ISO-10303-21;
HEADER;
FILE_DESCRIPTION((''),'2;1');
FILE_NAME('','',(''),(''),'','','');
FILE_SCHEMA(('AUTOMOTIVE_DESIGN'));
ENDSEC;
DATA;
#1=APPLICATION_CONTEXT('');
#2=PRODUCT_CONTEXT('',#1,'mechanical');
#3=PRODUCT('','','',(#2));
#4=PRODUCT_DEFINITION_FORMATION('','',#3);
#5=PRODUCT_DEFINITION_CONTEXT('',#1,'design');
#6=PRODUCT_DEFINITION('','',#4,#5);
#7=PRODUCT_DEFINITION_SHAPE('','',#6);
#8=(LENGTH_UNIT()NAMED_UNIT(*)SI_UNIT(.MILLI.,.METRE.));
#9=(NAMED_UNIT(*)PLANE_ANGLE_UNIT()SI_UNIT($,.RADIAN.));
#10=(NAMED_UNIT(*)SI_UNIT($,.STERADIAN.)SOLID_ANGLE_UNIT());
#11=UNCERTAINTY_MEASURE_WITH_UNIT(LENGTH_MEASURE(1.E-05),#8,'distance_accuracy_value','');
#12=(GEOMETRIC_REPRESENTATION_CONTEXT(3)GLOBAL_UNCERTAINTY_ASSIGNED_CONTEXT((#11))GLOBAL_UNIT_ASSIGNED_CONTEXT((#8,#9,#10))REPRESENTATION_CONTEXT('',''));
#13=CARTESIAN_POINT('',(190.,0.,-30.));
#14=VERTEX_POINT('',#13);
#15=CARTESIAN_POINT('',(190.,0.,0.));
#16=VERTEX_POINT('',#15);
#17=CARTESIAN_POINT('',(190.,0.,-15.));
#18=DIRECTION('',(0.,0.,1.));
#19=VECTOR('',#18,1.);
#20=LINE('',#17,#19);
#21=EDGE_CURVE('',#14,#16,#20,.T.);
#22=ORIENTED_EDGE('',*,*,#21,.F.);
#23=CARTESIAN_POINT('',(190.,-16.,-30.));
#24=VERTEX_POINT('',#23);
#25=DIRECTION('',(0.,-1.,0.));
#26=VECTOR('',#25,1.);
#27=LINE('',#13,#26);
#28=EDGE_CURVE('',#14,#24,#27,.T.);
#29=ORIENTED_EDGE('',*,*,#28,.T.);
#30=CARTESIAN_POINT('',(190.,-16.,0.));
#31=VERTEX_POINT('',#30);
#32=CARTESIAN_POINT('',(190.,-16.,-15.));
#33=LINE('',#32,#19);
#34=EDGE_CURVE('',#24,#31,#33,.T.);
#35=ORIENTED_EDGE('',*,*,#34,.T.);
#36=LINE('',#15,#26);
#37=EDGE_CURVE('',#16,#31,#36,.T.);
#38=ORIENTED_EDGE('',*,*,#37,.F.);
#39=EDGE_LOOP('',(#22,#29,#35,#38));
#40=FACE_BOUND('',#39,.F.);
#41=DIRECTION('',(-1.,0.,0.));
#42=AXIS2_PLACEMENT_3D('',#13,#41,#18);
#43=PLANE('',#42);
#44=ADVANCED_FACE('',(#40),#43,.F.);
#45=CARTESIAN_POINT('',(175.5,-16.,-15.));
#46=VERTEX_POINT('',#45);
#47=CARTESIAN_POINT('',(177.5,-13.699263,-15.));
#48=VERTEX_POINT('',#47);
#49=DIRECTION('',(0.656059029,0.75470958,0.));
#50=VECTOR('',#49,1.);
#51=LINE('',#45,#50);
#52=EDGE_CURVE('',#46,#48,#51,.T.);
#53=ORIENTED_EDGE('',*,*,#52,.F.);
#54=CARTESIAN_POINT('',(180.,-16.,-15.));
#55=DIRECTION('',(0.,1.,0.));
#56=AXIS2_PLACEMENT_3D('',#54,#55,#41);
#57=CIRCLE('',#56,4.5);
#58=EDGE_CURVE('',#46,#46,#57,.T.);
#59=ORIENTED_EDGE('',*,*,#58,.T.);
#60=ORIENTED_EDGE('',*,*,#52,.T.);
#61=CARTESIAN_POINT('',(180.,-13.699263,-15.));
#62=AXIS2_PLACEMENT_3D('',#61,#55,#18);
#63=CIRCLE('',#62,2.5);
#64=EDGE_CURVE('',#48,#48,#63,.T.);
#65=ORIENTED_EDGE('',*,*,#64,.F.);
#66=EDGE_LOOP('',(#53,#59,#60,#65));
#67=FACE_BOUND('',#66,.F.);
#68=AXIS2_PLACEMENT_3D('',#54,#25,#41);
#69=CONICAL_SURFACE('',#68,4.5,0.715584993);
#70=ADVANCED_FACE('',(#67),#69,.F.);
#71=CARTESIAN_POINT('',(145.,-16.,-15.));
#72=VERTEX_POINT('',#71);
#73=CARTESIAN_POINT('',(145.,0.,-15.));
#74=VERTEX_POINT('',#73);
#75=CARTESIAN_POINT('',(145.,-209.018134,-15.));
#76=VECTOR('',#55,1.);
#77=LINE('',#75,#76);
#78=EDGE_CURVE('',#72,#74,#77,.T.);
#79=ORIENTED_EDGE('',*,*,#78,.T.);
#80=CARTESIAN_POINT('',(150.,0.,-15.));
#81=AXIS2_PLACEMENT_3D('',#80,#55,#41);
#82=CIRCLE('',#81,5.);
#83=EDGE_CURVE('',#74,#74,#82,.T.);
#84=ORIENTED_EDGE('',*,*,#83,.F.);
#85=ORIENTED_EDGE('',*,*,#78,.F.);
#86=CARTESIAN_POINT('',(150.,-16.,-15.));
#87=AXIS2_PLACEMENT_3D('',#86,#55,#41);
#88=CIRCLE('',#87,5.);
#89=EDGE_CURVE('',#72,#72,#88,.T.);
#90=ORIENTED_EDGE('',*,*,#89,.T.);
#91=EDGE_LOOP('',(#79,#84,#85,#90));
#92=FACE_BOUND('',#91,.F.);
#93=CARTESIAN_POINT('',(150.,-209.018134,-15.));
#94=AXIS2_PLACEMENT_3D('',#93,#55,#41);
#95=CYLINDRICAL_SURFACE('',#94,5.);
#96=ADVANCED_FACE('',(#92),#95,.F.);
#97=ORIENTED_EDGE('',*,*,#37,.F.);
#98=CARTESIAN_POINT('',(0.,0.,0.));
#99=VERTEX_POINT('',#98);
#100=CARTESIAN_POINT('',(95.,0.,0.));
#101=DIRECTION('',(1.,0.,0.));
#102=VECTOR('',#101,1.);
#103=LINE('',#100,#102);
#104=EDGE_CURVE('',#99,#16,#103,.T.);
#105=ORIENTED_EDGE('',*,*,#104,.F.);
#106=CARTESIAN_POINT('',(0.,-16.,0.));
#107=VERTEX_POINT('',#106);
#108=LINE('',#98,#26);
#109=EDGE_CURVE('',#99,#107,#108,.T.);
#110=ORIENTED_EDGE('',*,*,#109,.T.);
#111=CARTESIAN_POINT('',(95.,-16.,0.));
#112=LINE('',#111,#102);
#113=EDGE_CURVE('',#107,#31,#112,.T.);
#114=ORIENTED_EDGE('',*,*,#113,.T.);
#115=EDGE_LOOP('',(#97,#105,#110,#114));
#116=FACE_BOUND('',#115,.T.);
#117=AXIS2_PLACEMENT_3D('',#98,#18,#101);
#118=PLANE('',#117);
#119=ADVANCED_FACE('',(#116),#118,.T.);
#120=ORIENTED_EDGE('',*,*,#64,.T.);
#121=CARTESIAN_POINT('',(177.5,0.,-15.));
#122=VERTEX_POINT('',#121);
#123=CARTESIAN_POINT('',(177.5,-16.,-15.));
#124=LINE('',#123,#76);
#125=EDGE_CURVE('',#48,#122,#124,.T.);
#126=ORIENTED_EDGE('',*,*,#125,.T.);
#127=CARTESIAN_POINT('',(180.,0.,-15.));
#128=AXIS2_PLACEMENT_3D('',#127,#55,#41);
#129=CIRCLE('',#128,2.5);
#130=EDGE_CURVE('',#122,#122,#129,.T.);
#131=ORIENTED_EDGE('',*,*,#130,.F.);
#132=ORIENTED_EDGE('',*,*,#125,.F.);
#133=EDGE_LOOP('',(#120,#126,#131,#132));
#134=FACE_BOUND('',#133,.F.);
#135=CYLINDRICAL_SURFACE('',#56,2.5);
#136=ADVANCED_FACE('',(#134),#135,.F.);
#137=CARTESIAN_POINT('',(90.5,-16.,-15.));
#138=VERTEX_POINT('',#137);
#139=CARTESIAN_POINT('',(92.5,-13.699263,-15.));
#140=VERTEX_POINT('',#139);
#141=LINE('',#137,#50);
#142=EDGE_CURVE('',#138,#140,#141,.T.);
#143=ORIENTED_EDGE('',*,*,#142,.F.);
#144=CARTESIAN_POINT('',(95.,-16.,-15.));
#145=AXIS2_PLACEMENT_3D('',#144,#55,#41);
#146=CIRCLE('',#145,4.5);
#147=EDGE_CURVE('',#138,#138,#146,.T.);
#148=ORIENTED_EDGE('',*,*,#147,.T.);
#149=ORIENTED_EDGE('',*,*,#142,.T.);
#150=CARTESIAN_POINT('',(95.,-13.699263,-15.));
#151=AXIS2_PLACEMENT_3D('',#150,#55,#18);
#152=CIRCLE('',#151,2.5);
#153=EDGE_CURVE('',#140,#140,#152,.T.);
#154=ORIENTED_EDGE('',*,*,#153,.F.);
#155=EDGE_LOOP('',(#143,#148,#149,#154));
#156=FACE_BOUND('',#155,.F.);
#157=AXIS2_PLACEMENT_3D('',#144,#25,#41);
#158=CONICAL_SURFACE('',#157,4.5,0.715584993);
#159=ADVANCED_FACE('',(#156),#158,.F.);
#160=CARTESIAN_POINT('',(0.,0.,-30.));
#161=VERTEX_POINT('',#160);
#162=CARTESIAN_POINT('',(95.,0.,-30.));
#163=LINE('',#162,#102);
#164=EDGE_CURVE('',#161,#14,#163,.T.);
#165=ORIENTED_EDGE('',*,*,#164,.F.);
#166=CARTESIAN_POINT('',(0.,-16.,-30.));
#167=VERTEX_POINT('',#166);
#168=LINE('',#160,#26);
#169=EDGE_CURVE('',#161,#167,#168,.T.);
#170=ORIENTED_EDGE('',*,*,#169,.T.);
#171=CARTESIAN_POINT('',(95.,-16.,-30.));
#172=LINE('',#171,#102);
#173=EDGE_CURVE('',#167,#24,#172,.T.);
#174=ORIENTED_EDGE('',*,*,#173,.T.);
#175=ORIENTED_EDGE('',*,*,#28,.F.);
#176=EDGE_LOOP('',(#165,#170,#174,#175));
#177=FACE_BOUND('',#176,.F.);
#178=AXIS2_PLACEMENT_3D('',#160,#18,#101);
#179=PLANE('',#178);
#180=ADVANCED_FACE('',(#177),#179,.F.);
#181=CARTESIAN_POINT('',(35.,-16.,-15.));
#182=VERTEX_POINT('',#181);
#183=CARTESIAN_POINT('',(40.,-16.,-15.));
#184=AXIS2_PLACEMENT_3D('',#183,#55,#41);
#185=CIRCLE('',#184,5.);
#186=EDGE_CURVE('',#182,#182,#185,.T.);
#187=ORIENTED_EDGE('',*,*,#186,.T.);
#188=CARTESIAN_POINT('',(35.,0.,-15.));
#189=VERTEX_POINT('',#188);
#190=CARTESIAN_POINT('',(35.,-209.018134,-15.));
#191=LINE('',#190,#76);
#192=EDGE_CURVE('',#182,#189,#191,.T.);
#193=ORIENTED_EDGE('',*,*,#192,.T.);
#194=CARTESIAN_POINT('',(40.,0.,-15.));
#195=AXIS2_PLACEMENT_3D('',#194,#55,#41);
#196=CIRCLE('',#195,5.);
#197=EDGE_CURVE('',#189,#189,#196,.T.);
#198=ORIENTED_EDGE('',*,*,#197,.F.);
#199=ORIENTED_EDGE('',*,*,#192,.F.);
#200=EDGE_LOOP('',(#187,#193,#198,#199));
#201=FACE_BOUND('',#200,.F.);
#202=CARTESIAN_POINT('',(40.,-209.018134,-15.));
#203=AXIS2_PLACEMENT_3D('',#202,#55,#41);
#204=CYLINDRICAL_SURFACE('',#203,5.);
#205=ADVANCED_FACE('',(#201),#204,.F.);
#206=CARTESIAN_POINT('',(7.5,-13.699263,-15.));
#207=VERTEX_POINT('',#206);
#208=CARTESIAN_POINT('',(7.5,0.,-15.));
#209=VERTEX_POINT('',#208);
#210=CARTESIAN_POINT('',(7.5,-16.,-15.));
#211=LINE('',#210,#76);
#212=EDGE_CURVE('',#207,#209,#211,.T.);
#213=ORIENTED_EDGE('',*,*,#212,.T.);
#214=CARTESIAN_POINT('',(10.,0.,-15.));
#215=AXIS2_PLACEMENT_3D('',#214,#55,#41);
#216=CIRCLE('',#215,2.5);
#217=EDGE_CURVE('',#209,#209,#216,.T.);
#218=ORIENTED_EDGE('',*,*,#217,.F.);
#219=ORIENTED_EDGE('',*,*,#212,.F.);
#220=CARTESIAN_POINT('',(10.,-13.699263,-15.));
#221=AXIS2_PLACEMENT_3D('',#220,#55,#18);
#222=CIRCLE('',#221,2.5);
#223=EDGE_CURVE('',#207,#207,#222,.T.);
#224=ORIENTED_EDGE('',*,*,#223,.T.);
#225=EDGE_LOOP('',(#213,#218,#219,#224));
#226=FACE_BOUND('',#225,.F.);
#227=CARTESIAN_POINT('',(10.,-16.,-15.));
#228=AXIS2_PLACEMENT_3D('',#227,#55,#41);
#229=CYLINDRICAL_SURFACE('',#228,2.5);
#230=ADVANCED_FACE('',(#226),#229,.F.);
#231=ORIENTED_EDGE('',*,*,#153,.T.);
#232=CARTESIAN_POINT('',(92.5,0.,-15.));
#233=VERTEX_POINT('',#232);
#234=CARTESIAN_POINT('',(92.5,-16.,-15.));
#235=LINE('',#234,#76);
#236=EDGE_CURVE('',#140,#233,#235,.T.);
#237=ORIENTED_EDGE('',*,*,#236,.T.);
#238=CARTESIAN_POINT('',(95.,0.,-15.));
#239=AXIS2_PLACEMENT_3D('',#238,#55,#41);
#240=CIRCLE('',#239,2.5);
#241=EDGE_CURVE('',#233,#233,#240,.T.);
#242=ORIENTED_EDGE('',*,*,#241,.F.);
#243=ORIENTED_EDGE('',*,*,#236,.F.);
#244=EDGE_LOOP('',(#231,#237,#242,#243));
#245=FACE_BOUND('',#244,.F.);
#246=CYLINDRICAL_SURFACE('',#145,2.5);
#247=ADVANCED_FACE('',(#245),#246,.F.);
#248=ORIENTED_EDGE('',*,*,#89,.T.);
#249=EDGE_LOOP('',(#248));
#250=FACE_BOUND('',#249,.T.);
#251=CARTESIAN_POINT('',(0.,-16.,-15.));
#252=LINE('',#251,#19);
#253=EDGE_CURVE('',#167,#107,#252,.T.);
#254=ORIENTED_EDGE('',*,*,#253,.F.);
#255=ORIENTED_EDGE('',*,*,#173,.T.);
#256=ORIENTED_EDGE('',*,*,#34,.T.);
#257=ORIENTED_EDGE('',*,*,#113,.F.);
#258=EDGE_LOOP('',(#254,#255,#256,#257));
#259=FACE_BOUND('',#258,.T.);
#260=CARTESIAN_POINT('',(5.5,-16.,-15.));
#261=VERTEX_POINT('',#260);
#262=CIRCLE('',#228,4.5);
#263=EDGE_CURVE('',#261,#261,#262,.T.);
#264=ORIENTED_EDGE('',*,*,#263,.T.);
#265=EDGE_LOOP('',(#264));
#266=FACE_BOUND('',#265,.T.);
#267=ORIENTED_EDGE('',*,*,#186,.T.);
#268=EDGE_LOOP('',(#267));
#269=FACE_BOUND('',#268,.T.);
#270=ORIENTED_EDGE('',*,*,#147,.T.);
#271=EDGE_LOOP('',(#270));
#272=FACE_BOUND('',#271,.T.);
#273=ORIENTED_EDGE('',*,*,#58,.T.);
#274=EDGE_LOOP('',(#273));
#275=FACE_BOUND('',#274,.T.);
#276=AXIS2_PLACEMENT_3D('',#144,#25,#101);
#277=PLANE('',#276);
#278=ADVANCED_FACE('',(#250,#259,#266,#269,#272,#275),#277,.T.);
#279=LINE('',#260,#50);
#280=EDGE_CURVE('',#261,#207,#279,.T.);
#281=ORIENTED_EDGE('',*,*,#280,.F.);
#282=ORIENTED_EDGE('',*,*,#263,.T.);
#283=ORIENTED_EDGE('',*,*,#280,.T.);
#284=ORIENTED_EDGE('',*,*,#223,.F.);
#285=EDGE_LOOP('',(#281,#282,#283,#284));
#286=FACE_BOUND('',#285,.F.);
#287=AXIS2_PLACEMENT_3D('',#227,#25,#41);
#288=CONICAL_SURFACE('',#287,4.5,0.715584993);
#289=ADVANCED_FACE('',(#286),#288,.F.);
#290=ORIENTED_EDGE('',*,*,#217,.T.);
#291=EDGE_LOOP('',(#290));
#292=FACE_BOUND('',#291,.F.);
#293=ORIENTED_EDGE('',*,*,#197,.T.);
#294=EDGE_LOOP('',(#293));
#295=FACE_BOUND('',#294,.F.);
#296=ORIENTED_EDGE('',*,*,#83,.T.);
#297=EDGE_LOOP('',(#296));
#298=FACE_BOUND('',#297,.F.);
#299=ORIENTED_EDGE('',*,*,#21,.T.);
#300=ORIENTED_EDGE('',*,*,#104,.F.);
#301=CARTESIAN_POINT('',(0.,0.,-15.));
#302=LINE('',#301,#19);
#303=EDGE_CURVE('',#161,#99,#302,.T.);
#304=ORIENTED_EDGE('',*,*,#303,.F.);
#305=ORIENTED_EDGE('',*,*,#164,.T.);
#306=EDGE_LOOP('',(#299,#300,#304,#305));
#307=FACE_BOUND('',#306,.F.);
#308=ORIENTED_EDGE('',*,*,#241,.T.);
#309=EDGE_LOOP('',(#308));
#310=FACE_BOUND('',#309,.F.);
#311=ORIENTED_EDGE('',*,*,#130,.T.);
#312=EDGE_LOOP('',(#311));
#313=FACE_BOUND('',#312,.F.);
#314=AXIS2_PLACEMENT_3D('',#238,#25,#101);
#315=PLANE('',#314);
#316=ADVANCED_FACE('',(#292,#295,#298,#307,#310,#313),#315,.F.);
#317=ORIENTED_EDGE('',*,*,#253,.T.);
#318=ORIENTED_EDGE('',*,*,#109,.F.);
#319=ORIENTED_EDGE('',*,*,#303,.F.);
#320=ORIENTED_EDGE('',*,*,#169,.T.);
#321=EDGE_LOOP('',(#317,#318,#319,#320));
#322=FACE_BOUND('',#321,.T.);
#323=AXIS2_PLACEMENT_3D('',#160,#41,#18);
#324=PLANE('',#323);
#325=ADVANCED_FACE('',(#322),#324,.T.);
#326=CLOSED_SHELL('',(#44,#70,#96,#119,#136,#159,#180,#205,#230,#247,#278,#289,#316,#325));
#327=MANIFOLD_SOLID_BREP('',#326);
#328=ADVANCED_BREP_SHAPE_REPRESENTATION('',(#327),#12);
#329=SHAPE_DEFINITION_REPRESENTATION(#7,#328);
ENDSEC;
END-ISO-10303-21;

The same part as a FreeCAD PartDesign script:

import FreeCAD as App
import Part
import Sketcher
from FreeCAD import Vector

doc = App.newDocument("Part")
body = doc.addObject("PartDesign::Body", "Body")

# Sketch on XZ plane
sketch1 = body.newObject("Sketcher::SketchObject", "Sketch")
sketch1.AttachmentSupport = (doc.getObject("XZ_Plane"), [""])
sketch1.MapMode = "FlatFace"
sketch1.addGeometry([
    Part.LineSegment(Vector(0, 0, 0), Vector(0, -30, 0)),
    Part.LineSegment(Vector(0, -30, 0), Vector(190, -30, 0)),
    Part.LineSegment(Vector(190, -30, 0), Vector(190, 0, 0)),
    Part.LineSegment(Vector(190, 0, 0), Vector(0, 0, 0)),
], False)
sketch1.addConstraint([
    Sketcher.Constraint("Coincident", 0, 2, 1, 1),
    Sketcher.Constraint("Coincident", 1, 2, 2, 1),
    Sketcher.Constraint("Coincident", 2, 2, 3, 1),
    Sketcher.Constraint("Coincident", 3, 2, 0, 1),
    Sketcher.Constraint("Vertical", 0),
    Sketcher.Constraint("Horizontal", 1),
    Sketcher.Constraint("Vertical", 2),
    Sketcher.Constraint("Horizontal", 3),
    Sketcher.Constraint("Coincident", 3, 2, -1, 1),
    Sketcher.Constraint("DistanceX", 1, 1, 1, 2, 190.0),
    Sketcher.Constraint("DistanceY", 0, 2, 0, 1, 30.0),
])
pad1 = body.newObject("PartDesign::Pad", "Pad")
pad1.Profile = sketch1
pad1.Length = 16

# Sketch on XZ plane
sketch2 = body.newObject("Sketcher::SketchObject", "Sketch001")
sketch2.AttachmentSupport = (doc.getObject("XZ_Plane"), [""])
sketch2.MapMode = "FlatFace"
sketch2.AttachmentOffset = App.Placement(Vector(0, 0, 16), App.Rotation())
sketch2.addGeometry([
    Part.Circle(Vector(10, -15, 0), Vector(0, 0, 1), 2.5),
    Part.Circle(Vector(95, -15, 0), Vector(0, 0, 1), 2.5),
    Part.Circle(Vector(180, -15, 0), Vector(0, 0, 1), 2.5),
    Part.Circle(Vector(180, -15, 0), Vector(0, 0, 1), 2.5),
], False)
sketch2.addConstraint([
    Sketcher.Constraint("Coincident", 3, 3, 2, 3),
    Sketcher.Constraint("Equal", 0, 1),
    Sketcher.Constraint("Equal", 1, 2),
    Sketcher.Constraint("Equal", 2, 3),
    Sketcher.Constraint("Horizontal", 0, 3, 1, 3),
    Sketcher.Constraint("Horizontal", 1, 3, 2, 3),
    Sketcher.Constraint("Diameter", 0, 5.0),
    Sketcher.Constraint("DistanceX", -1, 1, 0, 3, 10.0),
    Sketcher.Constraint("DistanceY", 0, 3, -1, 1, 15.0),
    Sketcher.Constraint("DistanceX", -1, 1, 1, 3, 95.0),
    Sketcher.Constraint("DistanceX", -1, 1, 2, 3, 180.0),
])
doc.recompute()
hole = body.newObject("PartDesign::Hole", "Hole")
hole.Profile = sketch2
hole.ThreadType = "None"
hole.Diameter = 5
hole.DepthType = "ThroughAll"
hole.HoleCutType = "Countersink"
hole.HoleCutDiameter = 9
hole.HoleCutCountersinkAngle = 82

# Sketch on XZ plane
sketch3 = body.newObject("Sketcher::SketchObject", "Sketch002")
sketch3.AttachmentSupport = (doc.getObject("XZ_Plane"), [""])
sketch3.MapMode = "FlatFace"
sketch3.AttachmentOffset = App.Placement(Vector(0, 0, 16), App.Rotation())
sketch3.addGeometry([
    Part.Circle(Vector(40, -15, 0), Vector(0, 0, 1), 5),
    Part.Circle(Vector(156, -53, 0), Vector(0, 0, 1), 5),
], False)
sketch3.addConstraint([
    Sketcher.Constraint("Equal", 0, 1),
    Sketcher.Constraint("Diameter", 0, 10.0),
    Sketcher.Constraint("DistanceX", -1, 1, 0, 3, 40.0),
    Sketcher.Constraint("DistanceY", 0, 3, -1, 1, 15.0),
    Sketcher.Constraint("DistanceX", -1, 1, 1, 3, 156.0),
    Sketcher.Constraint("DistanceY", 1, 3, -1, 1, 52.788887),
])
doc.recompute()
hole2 = body.newObject("PartDesign::Hole", "Hole001")
hole2.Profile = sketch3
hole2.ThreadType = "None"
hole2.Diameter = 10
hole2.DepthType = "ThroughAll"

# Sketch on XZ plane
sketch4 = body.newObject("Sketcher::SketchObject", "Sketch003")
sketch4.AttachmentSupport = (doc.getObject("XZ_Plane"), [""])
sketch4.MapMode = "FlatFace"
sketch4.AttachmentOffset = App.Placement(Vector(0, 0, 16), App.Rotation())
sketch4.addGeometry(Part.Circle(Vector(150, -15, 0), Vector(0, 0, 1), 5), False)
sketch4.addConstraint([
    Sketcher.Constraint("Diameter", 0, 10.0),
    Sketcher.Constraint("DistanceX", -1, 1, 0, 3, 150.0),
    Sketcher.Constraint("DistanceY", 0, 3, -1, 1, 15.0),
])
doc.recompute()
hole3 = body.newObject("PartDesign::Hole", "Hole002")
hole3.Profile = sketch4
hole3.ThreadType = "None"
hole3.Diameter = 10
hole3.DepthType = "ThroughAll"

doc.recompute()
